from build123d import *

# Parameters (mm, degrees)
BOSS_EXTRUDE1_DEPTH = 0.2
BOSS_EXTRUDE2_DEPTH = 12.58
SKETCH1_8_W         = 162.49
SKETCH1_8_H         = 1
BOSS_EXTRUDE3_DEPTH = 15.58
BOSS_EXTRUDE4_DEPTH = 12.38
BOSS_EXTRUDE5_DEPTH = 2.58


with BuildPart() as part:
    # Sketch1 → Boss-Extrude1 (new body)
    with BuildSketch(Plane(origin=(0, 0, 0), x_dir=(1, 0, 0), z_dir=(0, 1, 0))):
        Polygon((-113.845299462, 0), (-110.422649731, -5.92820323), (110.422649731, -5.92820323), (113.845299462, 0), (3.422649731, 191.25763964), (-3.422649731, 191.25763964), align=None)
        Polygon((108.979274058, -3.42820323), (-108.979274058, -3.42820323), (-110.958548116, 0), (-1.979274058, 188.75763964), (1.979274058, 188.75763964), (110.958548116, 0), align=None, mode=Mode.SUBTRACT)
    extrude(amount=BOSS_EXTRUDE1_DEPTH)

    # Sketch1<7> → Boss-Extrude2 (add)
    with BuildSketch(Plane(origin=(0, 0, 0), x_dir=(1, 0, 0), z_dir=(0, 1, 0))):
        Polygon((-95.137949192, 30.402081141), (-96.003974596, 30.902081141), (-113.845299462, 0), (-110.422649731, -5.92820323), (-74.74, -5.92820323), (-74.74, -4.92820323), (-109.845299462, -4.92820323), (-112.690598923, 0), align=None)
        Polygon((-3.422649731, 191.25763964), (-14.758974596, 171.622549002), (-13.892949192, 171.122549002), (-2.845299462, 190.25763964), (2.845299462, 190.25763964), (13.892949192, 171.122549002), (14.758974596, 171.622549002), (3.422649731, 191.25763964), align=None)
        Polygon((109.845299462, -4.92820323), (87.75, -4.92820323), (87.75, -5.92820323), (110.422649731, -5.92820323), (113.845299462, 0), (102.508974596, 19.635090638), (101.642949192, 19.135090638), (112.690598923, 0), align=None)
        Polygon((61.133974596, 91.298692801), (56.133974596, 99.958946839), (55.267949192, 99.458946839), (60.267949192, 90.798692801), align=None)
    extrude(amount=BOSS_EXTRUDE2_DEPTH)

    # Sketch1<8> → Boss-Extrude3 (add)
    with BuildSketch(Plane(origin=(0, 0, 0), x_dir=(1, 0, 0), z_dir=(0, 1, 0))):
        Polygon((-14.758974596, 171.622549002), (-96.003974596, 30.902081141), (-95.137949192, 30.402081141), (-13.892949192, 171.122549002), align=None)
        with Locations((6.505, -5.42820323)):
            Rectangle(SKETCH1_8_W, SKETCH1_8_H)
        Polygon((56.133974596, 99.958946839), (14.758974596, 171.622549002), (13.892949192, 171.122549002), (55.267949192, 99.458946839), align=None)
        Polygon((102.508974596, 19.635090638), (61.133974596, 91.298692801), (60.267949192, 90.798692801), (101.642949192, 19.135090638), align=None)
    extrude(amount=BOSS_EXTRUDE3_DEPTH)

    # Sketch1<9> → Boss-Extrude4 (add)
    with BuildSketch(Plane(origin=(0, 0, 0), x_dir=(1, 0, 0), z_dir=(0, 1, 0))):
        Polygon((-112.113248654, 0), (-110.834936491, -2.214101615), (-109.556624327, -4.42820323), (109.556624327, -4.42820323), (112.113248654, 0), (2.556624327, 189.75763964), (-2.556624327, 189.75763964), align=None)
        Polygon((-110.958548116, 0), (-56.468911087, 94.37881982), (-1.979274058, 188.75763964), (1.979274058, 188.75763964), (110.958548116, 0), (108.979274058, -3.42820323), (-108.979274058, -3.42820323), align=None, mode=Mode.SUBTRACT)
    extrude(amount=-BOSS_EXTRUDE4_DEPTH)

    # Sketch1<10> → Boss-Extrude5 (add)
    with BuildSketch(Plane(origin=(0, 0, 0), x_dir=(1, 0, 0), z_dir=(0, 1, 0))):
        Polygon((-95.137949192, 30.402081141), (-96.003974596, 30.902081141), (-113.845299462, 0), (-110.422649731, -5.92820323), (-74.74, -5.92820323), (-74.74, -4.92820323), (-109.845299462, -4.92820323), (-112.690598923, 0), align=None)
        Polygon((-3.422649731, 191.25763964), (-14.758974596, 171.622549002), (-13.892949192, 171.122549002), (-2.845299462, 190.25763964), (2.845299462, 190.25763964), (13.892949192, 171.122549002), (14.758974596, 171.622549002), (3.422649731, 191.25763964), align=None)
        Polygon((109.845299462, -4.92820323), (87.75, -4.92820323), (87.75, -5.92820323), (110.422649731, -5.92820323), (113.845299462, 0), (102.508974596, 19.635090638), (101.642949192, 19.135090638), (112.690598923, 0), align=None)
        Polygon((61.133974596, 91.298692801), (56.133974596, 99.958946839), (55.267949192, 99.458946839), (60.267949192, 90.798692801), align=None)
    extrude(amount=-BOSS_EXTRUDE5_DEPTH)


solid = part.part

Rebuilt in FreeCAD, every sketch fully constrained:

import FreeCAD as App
import Part
import Sketcher
Q = App.Units.Quantity


def add_polygon(sketch, points):
    """Adds a closed chain of lines whose ends are joined by coincident constraints."""
    first, n = sketch.GeometryCount, len(points)
    for a, b in zip(points, points[1:] + points[:1]):
        sketch.addGeometry(Part.LineSegment(App.Vector(*a, 0), App.Vector(*b, 0)), False)
    for i in range(n):
        sketch.addConstraint(Sketcher.Constraint("Coincident", first + i, 2, first + (i + 1) % n, 1))

doc = App.newDocument("Part")
body = doc.addObject("PartDesign::Body", "Body")

# Sketch on XZ plane
sketch1 = body.newObject("Sketcher::SketchObject", "Sketch")
sketch1.AttachmentSupport = (doc.getObject("XZ_Plane"), [""])
sketch1.MapMode = "FlatFace"
add_polygon(sketch1, [(-113.8, 0), (-110.4, 5.9), (110.4, 5.9), (113.8, 0), (3.4, -191.3), (-3.4, -191.3)])  # lines 0-5
add_polygon(sketch1, [(111, 0), (109, 3.4), (-109, 3.4), (-111, 0), (-2, -188.8), (2, -188.8)])  # lines 6-11
sketch1.addConstraint([
    Sketcher.Constraint("Horizontal", 1),
    Sketcher.Constraint("Horizontal", 4),
    Sketcher.Constraint("Horizontal", 7),
    Sketcher.Constraint("Horizontal", 10),
    Sketcher.Constraint("Symmetric", 2, 2, 5, 2, -1, 1),
    Sketcher.Constraint("Symmetric", 8, 2, 11, 2, -1, 1),
    Sketcher.Constraint("PointOnObject", 2, 2, -1),
    Sketcher.Constraint("PointOnObject", 8, 2, -1),
    Sketcher.Constraint("Parallel", 0, 3),
    Sketcher.Constraint("Parallel", 2, 5),
    Sketcher.Constraint("Parallel", 5, 6),
    Sketcher.Constraint("Parallel", 3, 8),
    Sketcher.Constraint("Parallel", 6, 9),
    Sketcher.Constraint("Parallel", 8, 11),
    Sketcher.Constraint("Equal", 0, 2),
    Sketcher.Constraint("Angle", 0, Q("60 deg")),
    Sketcher.Constraint("DistanceX", 3, 2, 1, 2, 107.0),
    Sketcher.Constraint("DistanceX", 7, 2, 9, 2, 107.0),
    Sketcher.Constraint("DistanceY", 6, 2, 1, 2, 2.5),
    Sketcher.Constraint("DistanceX", 1, 1, 1, 2, 220.845299),
    Sketcher.Constraint("Distance", 0, 6.845299),
    Sketcher.Constraint("DistanceX", 7, 2, 7, 1, 217.958548),
])
pad1 = body.newObject("PartDesign::Pad", "Pad")
pad1.Profile = sketch1
pad1.Length = 0.2
pad1.Reversed = True

# Sketch on XZ plane
sketch2 = body.newObject("Sketcher::SketchObject", "Sketch001")
sketch2.AttachmentSupport = (doc.getObject("XZ_Plane"), [""])
sketch2.MapMode = "FlatFace"
add_polygon(sketch2, [(-95.1, -30.4), (-96, -30.9), (-113.8, 0), (-110.4, 5.9), (-74.7, 5.9), (-74.7, 4.9), (-109.8, 4.9), (-112.7, 0)])  # lines 0-7
add_polygon(sketch2, [(-3.4, -191.3), (-14.8, -171.6), (-13.9, -171.1), (-2.8, -190.3), (2.8, -190.3), (13.9, -171.1), (14.8, -171.6), (3.4, -191.3)])  # lines 8-15
add_polygon(sketch2, [(109.8, 4.9), (87.8, 4.9), (87.8, 5.9), (110.4, 5.9), (113.8, 0), (102.5, -19.6), (101.6, -19.1), (112.7, 0)])  # lines 16-23
add_polygon(sketch2, [(61.1, -91.3), (56.1, -100), (55.3, -99.5), (60.3, -90.8)])  # lines 24-27
sketch2.addConstraint([
    Sketcher.Constraint("Horizontal", 3),
    Sketcher.Constraint("Vertical", 4),
    Sketcher.Constraint("Horizontal", 5),
    Sketcher.Constraint("Horizontal", 11),
    Sketcher.Constraint("Horizontal", 15),
    Sketcher.Constraint("Horizontal", 16),
    Sketcher.Constraint("Vertical", 17),
    Sketcher.Constraint("Horizontal", 18),
    Sketcher.Constraint("Symmetric", 1, 2, 19, 2, -1, 1),
    Sketcher.Constraint("Symmetric", 6, 2, 22, 2, -1, 1),
    Sketcher.Constraint("Symmetric", 9, 2, 12, 2, -2),
    Sketcher.Constraint("Symmetric", 8, 2, 13, 2, -2),
    Sketcher.Constraint("Symmetric", 2, 2, 18, 2, -2),
    Sketcher.Constraint("Symmetric", 5, 2, 23, 2, -2),
    Sketcher.Constraint("PointOnObject", 1, 2, -1),
    Sketcher.Constraint("PointOnObject", 6, 2, -1),
    Sketcher.Constraint("Perpendicular", 0, 1),
    Sketcher.Constraint("Parallel", 2, 6),
    Sketcher.Constraint("Parallel", 1, 7),
    Sketcher.Constraint("Parallel", 7, 8),
    Sketcher.Constraint("Perpendicular", 8, 9),
    Sketcher.Constraint("Perpendicular", 9, 10),
    Sketcher.Constraint("Parallel", 6, 12),
    Sketcher.Constraint("Perpendicular", 12, 13),
    Sketcher.Constraint("Perpendicular", 13, 14),
    Sketcher.Constraint("Parallel", 14, 20),
    Sketcher.Constraint("Perpendicular", 20, 21),
    Sketcher.Constraint("Perpendicular", 21, 22),
    Sketcher.Constraint("Parallel", 22, 24),
    Sketcher.Constraint("Perpendicular", 24, 25),
    Sketcher.Constraint("Perpendicular", 25, 26),
    Sketcher.Constraint("Perpendicular", 26, 27),
    Sketcher.Constraint("Equal", 0, 9),
    Sketcher.Constraint("Equal", 14, 20),
    Sketcher.Constraint("Equal", 12, 22),
    Sketcher.Constraint("Equal", 21, 25),
    Sketcher.Constraint("DistanceY", 4, 2, 4, 1, 1.0),
    Sketcher.Constraint("Angle", 0, Q("-150 deg")),
    Sketcher.Constraint("Distance", 0, 1.0),
    Sketcher.Constraint("Distance", 24, 10.0),
    Sketcher.Constraint("DistanceX", 1, 2, 5, 2, 4.0),
    Sketcher.Constraint("DistanceX", 3, 2, -1, 1, 74.74),
    Sketcher.Constraint("DistanceX", -1, 1, 16, 2, 87.75),
    Sketcher.Constraint("DistanceX", 13, 2, 20, 2, 87.75),
    Sketcher.Constraint("DistanceX", 5, 2, 5, 1, 35.105299),
    Sketcher.Constraint("DistanceX", 11, 1, 11, 2, 5.690599),
    Sketcher.Constraint("DistanceX", 0, 2, 8, 2, 81.245),
    Sketcher.Constraint("DistanceX", 13, 2, 24, 2, 41.375),
    Sketcher.Constraint("DistanceY", 8, 2, -1, 1, 171.622549),
    Sketcher.Constraint("DistanceY", 24, 2, -1, 1, 99.958947),
])
pad2 = body.newObject("PartDesign::Pad", "Pad001")
pad2.Profile = sketch2
pad2.Length = 12.58
pad2.Reversed = True

# Sketch on XZ plane
sketch3 = body.newObject("Sketcher::SketchObject", "Sketch002")
sketch3.AttachmentSupport = (doc.getObject("XZ_Plane"), [""])
sketch3.MapMode = "FlatFace"
add_polygon(sketch3, [(-14.8, -171.6), (-96, -30.9), (-95.1, -30.4), (-13.9, -171.1)])  # lines 0-3
add_polygon(sketch3, [(-74.7, 4.9), (-74.7, 5.9), (87.8, 5.9), (87.8, 4.9)])  # lines 4-7
add_polygon(sketch3, [(56.1, -100), (14.8, -171.6), (13.9, -171.1), (55.3, -99.5)])  # lines 8-11
add_polygon(sketch3, [(102.5, -19.6), (61.1, -91.3), (60.3, -90.8), (101.6, -19.1)])  # lines 12-15
sketch3.addConstraint([
    Sketcher.Constraint("Vertical", 4),
    Sketcher.Constraint("Horizontal", 5),
    Sketcher.Constraint("Vertical", 6),
    Sketcher.Constraint("Horizontal", 7),
    Sketcher.Constraint("Symmetric", 3, 2, 8, 2, -2),
    Sketcher.Constraint("Symmetric", 2, 2, 9, 2, -2),
    Sketcher.Constraint("Perpendicular", 0, 1),
    Sketcher.Constraint("Perpendicular", 1, 2),
    Sketcher.Constraint("Perpendicular", 2, 3),
    Sketcher.Constraint("Perpendicular", 8, 9),
    Sketcher.Constraint("Perpendicular", 9, 10),
    Sketcher.Constraint("Perpendicular", 10, 11),
    Sketcher.Constraint("Perpendicular", 11, 12),
    Sketcher.Constraint("Perpendicular", 12, 13),
    Sketcher.Constraint("Perpendicular", 13, 14),
    Sketcher.Constraint("Perpendicular", 14, 15),
    Sketcher.Constraint("Equal", 10, 12),
    Sketcher.Constraint("Equal", 11, 13),
    Sketcher.Constraint("DistanceY", 4, 1, 4, 2, 1.0),
    Sketcher.Constraint("Angle", 0, Q("120 deg")),
    Sketcher.Constraint("Distance", 1, 1.0),
    Sketcher.Constraint("DistanceX", 11, 2, 12, 2, 5.0),
    Sketcher.Constraint("DistanceX", 5, 1, 5, 2, 162.49),
    Sketcher.Constraint("Distance", 0, 162.49),
    Sketcher.Constraint("Distance", 8, 82.75),
    Sketcher.Constraint("DistanceX", 4, 2, -1, 1, 74.74),
    Sketcher.Constraint("DistanceX", 2, 2, 9, 2, 27.785898),
    Sketcher.Constraint("DistanceY", 0, 2, -1, 1, 30.902081),
    Sketcher.Constraint("DistanceY", 14, 2, -1, 1, 19.135091),
    Sketcher.Constraint("DistanceY", 10, 2, 6, 2, 104.38715),
])
pad3 = body.newObject("PartDesign::Pad", "Pad002")
pad3.Profile = sketch3
pad3.Length = 15.58
pad3.Reversed = True

# Sketch on XZ plane
sketch4 = body.newObject("Sketcher::SketchObject", "Sketch003")
sketch4.AttachmentSupport = (doc.getObject("XZ_Plane"), [""])
sketch4.MapMode = "FlatFace"
add_polygon(sketch4, [(-112.1, 0), (-110.8, 2.2), (-109.6, 4.4), (109.6, 4.4), (112.1, 0), (2.6, -189.8), (-2.6, -189.8)])  # lines 0-6
add_polygon(sketch4, [(-109, 3.4), (-111, 0), (-2, -188.8), (2, -188.8), (111, 0), (109, 3.4)])  # lines 7-12
sketch4.addConstraint([
    Sketcher.Constraint("Horizontal", 2),
    Sketcher.Constraint("Horizontal", 5),
    Sketcher.Constraint("Horizontal", 9),
    Sketcher.Constraint("Horizontal", 12),
    Sketcher.Constraint("Symmetric", 3, 2, 6, 2, -1, 1),
    Sketcher.Constraint("Symmetric", 7, 2, 10, 2, -1, 1),
    Sketcher.Constraint("PointOnObject", 3, 2, -1),
    Sketcher.Constraint("PointOnObject", 7, 2, -1),
    Sketcher.Constraint("Parallel", 0, 1),
    Sketcher.Constraint("Parallel", 1, 4),
    Sketcher.Constraint("Parallel", 3, 6),
    Sketcher.Constraint("Parallel", 4, 7),
    Sketcher.Constraint("Parallel", 6, 8),
    Sketcher.Constraint("Parallel", 7, 10),
    Sketcher.Constraint("Parallel", 8, 11),
    Sketcher.Constraint("Equal", 0, 1),
    Sketcher.Constraint("Equal", 4, 6),
    Sketcher.Constraint("Angle", 0, Q("60 deg")),
    Sketcher.Constraint("DistanceX", 4, 2, 2, 2, 107.0),
    Sketcher.Constraint("DistanceY", 5, 2, 8, 2, 1.0),
    Sketcher.Constraint("DistanceY", 11, 2, 2, 2, 1.0),
    Sketcher.Constraint("DistanceX", 2, 1, 2, 2, 219.113249),
    Sketcher.Constraint("DistanceX", 9, 1, 9, 2, 3.958548),
    Sketcher.Constraint("DistanceY", -1, 1, 0, 2, 2.214102),
])
pad4 = body.newObject("PartDesign::Pad", "Pad003")
pad4.Profile = sketch4
pad4.Length = 12.38

# Sketch on XZ plane
sketch5 = body.newObject("Sketcher::SketchObject", "Sketch004")
sketch5.AttachmentSupport = (doc.getObject("XZ_Plane"), [""])
sketch5.MapMode = "FlatFace"
add_polygon(sketch5, [(-95.1, -30.4), (-96, -30.9), (-113.8, 0), (-110.4, 5.9), (-74.7, 5.9), (-74.7, 4.9), (-109.8, 4.9), (-112.7, 0)])  # lines 0-7
add_polygon(sketch5, [(-3.4, -191.3), (-14.8, -171.6), (-13.9, -171.1), (-2.8, -190.3), (2.8, -190.3), (13.9, -171.1), (14.8, -171.6), (3.4, -191.3)])  # lines 8-15
add_polygon(sketch5, [(109.8, 4.9), (87.8, 4.9), (87.8, 5.9), (110.4, 5.9), (113.8, 0), (102.5, -19.6), (101.6, -19.1), (112.7, 0)])  # lines 16-23
add_polygon(sketch5, [(61.1, -91.3), (56.1, -100), (55.3, -99.5), (60.3, -90.8)])  # lines 24-27
sketch5.addConstraint([
    Sketcher.Constraint("Horizontal", 3),
    Sketcher.Constraint("Vertical", 4),
    Sketcher.Constraint("Horizontal", 5),
    Sketcher.Constraint("Horizontal", 11),
    Sketcher.Constraint("Horizontal", 15),
    Sketcher.Constraint("Horizontal", 16),
    Sketcher.Constraint("Vertical", 17),
    Sketcher.Constraint("Horizontal", 18),
    Sketcher.Constraint("Symmetric", 1, 2, 19, 2, -1, 1),
    Sketcher.Constraint("Symmetric", 6, 2, 22, 2, -1, 1),
    Sketcher.Constraint("Symmetric", 9, 2, 12, 2, -2),
    Sketcher.Constraint("Symmetric", 8, 2, 13, 2, -2),
    Sketcher.Constraint("Symmetric", 2, 2, 18, 2, -2),
    Sketcher.Constraint("Symmetric", 5, 2, 23, 2, -2),
    Sketcher.Constraint("PointOnObject", 1, 2, -1),
    Sketcher.Constraint("PointOnObject", 6, 2, -1),
    Sketcher.Constraint("Perpendicular", 0, 1),
    Sketcher.Constraint("Parallel", 2, 6),
    Sketcher.Constraint("Parallel", 1, 7),
    Sketcher.Constraint("Parallel", 7, 8),
    Sketcher.Constraint("Perpendicular", 8, 9),
    Sketcher.Constraint("Perpendicular", 9, 10),
    Sketcher.Constraint("Parallel", 6, 12),
    Sketcher.Constraint("Perpendicular", 12, 13),
    Sketcher.Constraint("Perpendicular", 13, 14),
    Sketcher.Constraint("Parallel", 14, 20),
    Sketcher.Constraint("Perpendicular", 20, 21),
    Sketcher.Constraint("Perpendicular", 21, 22),
    Sketcher.Constraint("Parallel", 22, 24),
    Sketcher.Constraint("Perpendicular", 24, 25),
    Sketcher.Constraint("Perpendicular", 25, 26),
    Sketcher.Constraint("Perpendicular", 26, 27),
    Sketcher.Constraint("Equal", 0, 9),
    Sketcher.Constraint("Equal", 14, 20),
    Sketcher.Constraint("Equal", 12, 22),
    Sketcher.Constraint("Equal", 21, 25),
    Sketcher.Constraint("DistanceY", 4, 2, 4, 1, 1.0),
    Sketcher.Constraint("Angle", 0, Q("-150 deg")),
    Sketcher.Constraint("Distance", 0, 1.0),
    Sketcher.Constraint("Distance", 24, 10.0),
    Sketcher.Constraint("DistanceX", 1, 2, 5, 2, 4.0),
    Sketcher.Constraint("DistanceX", 3, 2, -1, 1, 74.74),
    Sketcher.Constraint("DistanceX", -1, 1, 16, 2, 87.75),
    Sketcher.Constraint("DistanceX", 13, 2, 20, 2, 87.75),
    Sketcher.Constraint("DistanceX", 5, 2, 5, 1, 35.105299),
    Sketcher.Constraint("DistanceX", 11, 1, 11, 2, 5.690599),
    Sketcher.Constraint("DistanceX", 0, 2, 8, 2, 81.245),
    Sketcher.Constraint("DistanceX", 13, 2, 24, 2, 41.375),
    Sketcher.Constraint("DistanceY", 8, 2, -1, 1, 171.622549),
    Sketcher.Constraint("DistanceY", 24, 2, -1, 1, 99.958947),
])
pad5 = body.newObject("PartDesign::Pad", "Pad004")
pad5.Profile = sketch5
pad5.Length = 2.58

doc.recompute()
